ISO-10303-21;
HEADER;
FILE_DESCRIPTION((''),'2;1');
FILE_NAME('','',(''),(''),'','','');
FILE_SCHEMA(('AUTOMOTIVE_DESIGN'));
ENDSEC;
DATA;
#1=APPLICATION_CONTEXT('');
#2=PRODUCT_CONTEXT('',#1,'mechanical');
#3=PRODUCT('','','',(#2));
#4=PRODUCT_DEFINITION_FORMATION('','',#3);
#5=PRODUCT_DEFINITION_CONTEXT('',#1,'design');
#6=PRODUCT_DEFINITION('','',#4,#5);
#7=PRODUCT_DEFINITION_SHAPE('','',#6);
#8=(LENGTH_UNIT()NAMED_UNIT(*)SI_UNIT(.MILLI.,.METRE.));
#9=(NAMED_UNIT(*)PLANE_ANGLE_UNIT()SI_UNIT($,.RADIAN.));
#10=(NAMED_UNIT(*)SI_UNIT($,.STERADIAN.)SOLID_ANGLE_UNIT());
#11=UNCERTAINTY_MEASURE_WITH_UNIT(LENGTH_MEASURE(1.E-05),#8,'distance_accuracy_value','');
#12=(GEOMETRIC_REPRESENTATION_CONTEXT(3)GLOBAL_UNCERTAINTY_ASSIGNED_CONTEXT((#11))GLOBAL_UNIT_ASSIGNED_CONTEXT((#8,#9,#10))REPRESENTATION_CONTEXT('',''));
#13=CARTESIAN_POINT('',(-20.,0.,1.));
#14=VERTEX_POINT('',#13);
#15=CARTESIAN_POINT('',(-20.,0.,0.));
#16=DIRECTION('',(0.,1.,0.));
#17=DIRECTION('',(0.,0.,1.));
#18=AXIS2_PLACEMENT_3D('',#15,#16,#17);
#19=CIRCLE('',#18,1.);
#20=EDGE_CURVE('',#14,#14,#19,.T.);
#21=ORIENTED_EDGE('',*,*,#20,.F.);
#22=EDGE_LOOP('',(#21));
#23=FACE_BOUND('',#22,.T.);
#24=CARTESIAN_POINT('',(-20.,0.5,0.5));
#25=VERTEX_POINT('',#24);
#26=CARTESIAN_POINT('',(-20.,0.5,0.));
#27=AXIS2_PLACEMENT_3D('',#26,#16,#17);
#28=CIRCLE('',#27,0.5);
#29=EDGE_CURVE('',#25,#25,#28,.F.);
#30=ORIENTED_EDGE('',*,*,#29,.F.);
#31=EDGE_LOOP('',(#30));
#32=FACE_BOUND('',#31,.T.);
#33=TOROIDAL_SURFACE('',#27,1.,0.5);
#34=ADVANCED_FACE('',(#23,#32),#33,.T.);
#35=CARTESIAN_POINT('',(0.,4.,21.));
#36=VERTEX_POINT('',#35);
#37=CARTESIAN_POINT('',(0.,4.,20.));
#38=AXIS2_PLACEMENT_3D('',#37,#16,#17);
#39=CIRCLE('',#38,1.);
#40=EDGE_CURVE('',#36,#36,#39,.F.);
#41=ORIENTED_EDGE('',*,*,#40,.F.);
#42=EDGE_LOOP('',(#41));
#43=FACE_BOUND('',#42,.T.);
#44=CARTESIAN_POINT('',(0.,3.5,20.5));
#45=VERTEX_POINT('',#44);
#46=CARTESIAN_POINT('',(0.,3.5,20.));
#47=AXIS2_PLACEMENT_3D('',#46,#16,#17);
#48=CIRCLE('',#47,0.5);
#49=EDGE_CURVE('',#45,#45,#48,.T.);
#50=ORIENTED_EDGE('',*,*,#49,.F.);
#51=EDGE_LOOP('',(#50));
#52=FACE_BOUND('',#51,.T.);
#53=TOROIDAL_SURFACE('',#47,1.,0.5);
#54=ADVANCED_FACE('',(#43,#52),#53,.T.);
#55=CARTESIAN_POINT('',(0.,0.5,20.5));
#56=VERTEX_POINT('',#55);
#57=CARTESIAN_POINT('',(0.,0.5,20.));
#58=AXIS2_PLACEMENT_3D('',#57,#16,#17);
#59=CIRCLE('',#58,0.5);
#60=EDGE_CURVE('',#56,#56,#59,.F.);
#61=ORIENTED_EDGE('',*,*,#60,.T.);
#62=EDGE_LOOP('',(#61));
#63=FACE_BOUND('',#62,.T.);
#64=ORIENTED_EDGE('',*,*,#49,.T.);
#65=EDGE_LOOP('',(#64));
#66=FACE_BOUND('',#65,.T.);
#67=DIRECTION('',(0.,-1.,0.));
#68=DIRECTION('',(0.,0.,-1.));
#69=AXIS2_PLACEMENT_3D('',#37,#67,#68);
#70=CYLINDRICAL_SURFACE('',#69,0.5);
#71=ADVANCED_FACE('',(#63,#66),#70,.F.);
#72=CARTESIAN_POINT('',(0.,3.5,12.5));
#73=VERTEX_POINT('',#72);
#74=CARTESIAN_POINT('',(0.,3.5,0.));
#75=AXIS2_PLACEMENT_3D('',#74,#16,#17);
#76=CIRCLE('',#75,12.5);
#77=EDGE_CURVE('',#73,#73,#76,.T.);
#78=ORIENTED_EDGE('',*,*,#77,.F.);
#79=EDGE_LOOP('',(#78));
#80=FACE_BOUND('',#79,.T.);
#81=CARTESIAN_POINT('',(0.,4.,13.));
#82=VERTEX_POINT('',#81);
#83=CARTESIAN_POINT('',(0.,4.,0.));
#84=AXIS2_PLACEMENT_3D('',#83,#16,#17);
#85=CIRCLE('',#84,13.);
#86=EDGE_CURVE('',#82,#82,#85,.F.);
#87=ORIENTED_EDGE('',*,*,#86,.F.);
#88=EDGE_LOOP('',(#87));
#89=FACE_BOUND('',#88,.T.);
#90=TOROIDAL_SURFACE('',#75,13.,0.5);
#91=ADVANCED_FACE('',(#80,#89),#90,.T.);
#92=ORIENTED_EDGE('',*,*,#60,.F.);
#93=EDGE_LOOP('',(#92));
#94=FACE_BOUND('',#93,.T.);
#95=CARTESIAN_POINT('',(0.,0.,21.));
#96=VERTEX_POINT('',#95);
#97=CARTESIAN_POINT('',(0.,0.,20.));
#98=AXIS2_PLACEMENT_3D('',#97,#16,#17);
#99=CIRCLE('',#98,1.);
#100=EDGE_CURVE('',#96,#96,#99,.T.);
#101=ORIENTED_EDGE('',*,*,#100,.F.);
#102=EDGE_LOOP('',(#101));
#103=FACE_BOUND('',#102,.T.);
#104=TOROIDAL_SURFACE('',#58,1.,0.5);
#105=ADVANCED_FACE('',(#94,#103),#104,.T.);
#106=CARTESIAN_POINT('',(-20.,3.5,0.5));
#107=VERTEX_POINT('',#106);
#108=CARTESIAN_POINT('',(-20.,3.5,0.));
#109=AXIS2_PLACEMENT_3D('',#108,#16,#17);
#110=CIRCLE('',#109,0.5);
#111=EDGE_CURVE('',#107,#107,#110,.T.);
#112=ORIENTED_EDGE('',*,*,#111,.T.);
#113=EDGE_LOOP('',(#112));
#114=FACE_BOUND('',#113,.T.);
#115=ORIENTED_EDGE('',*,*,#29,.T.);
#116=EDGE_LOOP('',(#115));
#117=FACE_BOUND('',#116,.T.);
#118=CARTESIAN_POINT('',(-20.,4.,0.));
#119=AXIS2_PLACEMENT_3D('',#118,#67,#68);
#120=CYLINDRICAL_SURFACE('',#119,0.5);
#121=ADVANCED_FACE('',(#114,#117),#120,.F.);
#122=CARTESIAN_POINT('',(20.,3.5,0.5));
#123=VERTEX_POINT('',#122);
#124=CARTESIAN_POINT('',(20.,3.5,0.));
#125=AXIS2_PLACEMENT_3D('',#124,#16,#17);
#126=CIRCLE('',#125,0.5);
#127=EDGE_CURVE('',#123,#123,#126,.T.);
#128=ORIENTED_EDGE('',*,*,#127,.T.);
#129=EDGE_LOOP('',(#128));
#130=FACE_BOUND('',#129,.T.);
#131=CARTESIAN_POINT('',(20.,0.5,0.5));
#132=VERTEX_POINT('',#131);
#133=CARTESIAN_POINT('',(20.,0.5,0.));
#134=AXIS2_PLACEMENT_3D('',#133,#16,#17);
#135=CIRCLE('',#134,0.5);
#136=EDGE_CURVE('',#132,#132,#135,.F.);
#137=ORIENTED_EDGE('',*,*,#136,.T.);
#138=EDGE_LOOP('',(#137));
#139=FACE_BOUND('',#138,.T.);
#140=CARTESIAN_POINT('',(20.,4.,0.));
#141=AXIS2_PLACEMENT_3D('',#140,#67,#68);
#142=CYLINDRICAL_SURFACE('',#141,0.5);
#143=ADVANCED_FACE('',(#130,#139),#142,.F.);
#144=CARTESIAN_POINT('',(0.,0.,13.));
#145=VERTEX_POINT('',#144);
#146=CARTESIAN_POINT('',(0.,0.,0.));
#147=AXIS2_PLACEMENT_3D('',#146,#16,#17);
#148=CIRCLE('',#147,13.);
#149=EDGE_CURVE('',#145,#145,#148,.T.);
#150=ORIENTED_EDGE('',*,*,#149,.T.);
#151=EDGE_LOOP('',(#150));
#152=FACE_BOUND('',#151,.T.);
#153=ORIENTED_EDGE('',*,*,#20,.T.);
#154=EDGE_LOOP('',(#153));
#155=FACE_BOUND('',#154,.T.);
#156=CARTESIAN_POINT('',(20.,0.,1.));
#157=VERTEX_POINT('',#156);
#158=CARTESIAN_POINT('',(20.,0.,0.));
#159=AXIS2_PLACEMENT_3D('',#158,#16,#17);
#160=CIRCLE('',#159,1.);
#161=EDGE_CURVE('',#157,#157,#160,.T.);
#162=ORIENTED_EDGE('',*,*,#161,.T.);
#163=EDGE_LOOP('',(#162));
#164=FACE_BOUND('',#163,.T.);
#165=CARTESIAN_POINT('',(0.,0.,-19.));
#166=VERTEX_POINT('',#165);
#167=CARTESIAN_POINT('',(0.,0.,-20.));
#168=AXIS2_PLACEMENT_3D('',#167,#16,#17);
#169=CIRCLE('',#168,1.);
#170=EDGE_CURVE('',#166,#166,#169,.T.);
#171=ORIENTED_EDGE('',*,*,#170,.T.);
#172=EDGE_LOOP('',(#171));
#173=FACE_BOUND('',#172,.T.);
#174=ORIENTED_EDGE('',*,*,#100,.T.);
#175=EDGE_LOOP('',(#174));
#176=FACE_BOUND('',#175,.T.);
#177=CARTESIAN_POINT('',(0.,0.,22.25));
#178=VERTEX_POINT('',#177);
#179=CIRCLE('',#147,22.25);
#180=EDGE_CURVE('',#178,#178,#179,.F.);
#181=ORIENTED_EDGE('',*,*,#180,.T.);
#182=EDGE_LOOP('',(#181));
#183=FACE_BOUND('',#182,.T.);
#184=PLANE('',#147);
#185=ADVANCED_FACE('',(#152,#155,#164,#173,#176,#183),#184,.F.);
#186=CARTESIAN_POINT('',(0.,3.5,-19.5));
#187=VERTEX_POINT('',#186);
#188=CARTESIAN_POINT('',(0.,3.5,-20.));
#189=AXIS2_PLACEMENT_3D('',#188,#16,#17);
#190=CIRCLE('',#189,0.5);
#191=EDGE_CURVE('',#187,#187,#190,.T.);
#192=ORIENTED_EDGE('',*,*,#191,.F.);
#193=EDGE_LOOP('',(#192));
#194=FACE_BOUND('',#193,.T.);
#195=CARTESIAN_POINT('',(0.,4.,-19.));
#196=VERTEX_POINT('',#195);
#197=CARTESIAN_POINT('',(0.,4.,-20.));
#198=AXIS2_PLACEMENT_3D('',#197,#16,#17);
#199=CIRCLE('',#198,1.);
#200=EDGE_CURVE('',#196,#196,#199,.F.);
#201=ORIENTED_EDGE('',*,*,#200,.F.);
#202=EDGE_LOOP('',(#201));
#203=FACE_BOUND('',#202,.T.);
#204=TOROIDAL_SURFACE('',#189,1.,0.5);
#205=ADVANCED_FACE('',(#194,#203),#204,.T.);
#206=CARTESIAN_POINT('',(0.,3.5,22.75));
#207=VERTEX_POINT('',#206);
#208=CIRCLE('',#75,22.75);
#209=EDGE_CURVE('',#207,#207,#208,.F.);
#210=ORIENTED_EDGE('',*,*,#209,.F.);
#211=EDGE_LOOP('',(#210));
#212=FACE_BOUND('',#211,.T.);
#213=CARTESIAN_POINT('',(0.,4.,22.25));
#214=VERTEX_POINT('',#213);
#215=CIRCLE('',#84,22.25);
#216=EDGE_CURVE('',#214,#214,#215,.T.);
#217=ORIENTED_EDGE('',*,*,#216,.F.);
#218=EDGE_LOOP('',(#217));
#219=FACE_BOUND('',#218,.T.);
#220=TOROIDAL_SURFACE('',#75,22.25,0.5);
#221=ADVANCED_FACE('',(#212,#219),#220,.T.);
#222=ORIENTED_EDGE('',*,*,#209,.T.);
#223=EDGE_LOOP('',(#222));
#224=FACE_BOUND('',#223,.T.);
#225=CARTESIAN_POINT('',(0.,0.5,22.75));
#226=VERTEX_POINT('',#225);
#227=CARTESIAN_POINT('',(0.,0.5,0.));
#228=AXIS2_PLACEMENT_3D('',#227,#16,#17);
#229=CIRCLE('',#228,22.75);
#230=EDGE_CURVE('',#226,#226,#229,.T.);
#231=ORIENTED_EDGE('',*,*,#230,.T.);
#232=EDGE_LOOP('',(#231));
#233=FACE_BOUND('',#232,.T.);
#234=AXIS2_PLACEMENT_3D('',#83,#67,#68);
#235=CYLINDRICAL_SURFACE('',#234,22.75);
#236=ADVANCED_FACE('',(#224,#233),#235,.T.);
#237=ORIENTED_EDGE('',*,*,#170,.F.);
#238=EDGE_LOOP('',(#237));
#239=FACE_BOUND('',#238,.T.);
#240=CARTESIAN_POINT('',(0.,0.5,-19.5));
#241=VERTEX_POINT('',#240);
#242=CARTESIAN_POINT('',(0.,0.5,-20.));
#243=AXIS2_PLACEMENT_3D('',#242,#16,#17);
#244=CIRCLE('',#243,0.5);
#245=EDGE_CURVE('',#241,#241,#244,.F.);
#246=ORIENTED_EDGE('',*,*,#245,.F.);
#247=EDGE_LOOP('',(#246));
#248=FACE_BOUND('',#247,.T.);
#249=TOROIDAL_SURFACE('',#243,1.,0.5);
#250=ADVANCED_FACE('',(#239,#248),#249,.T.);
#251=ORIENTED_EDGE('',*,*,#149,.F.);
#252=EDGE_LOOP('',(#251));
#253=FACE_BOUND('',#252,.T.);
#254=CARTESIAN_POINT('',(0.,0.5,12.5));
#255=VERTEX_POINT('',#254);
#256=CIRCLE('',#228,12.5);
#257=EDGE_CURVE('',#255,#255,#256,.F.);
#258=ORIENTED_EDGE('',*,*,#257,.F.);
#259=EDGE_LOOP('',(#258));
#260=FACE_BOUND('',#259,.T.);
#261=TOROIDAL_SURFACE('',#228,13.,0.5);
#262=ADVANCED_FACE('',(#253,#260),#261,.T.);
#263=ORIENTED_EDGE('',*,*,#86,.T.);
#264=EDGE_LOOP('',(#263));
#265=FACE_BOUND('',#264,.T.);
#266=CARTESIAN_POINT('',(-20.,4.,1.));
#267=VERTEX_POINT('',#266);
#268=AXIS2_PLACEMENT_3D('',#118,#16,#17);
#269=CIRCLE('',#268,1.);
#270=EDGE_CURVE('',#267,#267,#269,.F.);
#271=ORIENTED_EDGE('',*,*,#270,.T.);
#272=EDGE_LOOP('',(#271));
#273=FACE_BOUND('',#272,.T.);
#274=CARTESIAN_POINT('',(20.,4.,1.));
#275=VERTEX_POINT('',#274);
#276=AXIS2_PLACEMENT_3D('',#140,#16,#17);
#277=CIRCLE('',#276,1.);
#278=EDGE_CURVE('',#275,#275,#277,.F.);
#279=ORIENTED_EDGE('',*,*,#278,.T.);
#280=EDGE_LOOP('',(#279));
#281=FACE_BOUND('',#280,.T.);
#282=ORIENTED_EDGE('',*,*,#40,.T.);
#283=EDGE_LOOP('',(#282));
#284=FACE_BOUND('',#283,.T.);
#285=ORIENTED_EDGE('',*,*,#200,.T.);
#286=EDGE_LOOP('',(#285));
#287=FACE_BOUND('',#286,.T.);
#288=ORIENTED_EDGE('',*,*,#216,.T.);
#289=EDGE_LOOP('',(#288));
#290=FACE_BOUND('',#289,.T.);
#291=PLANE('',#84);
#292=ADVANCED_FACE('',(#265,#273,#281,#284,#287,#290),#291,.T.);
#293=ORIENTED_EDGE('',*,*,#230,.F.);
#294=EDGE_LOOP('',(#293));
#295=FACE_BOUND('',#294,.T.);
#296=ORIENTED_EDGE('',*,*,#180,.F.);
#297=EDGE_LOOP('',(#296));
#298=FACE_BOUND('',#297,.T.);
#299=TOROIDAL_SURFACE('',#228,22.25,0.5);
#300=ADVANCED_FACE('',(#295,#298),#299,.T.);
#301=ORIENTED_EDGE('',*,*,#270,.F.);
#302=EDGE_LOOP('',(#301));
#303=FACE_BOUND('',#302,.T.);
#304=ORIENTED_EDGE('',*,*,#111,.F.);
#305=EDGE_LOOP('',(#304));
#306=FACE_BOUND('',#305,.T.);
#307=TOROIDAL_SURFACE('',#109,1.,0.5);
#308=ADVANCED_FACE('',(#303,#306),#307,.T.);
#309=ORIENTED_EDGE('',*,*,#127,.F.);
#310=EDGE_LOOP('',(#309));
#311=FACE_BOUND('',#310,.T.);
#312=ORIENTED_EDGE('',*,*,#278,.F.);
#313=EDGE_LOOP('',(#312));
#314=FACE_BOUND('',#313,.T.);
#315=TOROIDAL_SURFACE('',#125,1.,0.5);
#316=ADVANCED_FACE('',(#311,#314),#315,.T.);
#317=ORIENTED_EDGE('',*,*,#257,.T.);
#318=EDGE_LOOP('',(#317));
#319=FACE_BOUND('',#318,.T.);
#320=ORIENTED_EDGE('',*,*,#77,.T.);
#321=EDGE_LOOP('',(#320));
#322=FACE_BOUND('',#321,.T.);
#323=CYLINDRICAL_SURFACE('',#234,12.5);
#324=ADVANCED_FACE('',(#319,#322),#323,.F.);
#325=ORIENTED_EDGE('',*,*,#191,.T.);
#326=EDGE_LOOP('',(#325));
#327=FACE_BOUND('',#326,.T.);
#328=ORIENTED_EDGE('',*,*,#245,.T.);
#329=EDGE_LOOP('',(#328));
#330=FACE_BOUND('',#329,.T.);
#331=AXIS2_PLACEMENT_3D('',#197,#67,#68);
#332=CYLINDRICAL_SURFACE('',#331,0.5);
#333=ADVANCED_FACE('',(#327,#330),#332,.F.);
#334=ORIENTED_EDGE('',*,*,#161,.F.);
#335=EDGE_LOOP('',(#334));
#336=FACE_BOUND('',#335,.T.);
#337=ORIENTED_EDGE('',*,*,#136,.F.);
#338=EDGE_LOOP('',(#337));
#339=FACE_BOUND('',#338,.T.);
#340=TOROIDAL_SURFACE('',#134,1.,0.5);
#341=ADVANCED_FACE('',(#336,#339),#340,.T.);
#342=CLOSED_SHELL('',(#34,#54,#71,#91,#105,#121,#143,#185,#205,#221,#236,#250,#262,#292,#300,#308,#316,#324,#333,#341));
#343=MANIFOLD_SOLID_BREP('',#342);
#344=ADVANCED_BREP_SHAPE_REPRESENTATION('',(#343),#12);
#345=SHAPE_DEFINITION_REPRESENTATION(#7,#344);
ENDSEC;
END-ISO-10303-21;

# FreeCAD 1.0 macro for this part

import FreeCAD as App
import Part
import Sketcher
from FreeCAD import Vector


def edges_at(feature, points):
    """Names of the edges that pass closest to the given points."""
    edges = feature.Shape.Edges
    near = lambda p: min(range(len(edges)), key=lambda i: edges[i].distToShape(Part.Vertex(*p))[0])
    return sorted({f"Edge{near(p) + 1}" for p in points})

doc = App.newDocument("Part")
body = doc.addObject("PartDesign::Body", "Body")

# Sketch on XZ plane
sketch1 = body.newObject("Sketcher::SketchObject", "Sketch")
sketch1.AttachmentSupport = (doc.getObject("XZ_Plane"), [""])
sketch1.MapMode = "FlatFace"
sketch1.addGeometry([
    Part.Circle(Vector(0, 0, 0), Vector(0, 0, 1), 22.8),  # 0
    Part.Circle(Vector(0, 20, 0), Vector(0, 0, 1), 0.5),  # 1
    Part.Circle(Vector(-20, 0, 0), Vector(0, 0, 1), 0.5),  # 2
    Part.Circle(Vector(0, 0, 0), Vector(0, 0, 1), 12.5),  # 3
    Part.Circle(Vector(20, 0, 0), Vector(0, 0, 1), 0.5),  # 4
    Part.Circle(Vector(0, -20, 0), Vector(0, 0, 1), 0.5),  # 5
], False)
sketch1.addConstraint([
    Sketcher.Constraint("Coincident", 0, 3, -1, 1),
    Sketcher.Constraint("Coincident", 3, 3, -1, 1),
    Sketcher.Constraint("Equal", 1, 2),
    Sketcher.Constraint("Equal", 2, 4),
    Sketcher.Constraint("Equal", 4, 5),
    Sketcher.Constraint("Symmetric", 2, 3, 4, 3, -1, 1),
    Sketcher.Constraint("Symmetric", 1, 3, 5, 3, -1, 1),
    Sketcher.Constraint("PointOnObject", 1, 3, -2),
    Sketcher.Constraint("PointOnObject", 2, 3, -1),
    Sketcher.Constraint("Diameter", 1, 1.0),
    Sketcher.Constraint("Diameter", 3, 25.0),
    Sketcher.Constraint("Diameter", 0, 45.5),
    Sketcher.Constraint("DistanceY", -1, 1, 1, 3, 20.0),
    Sketcher.Constraint("DistanceX", 2, 3, -1, 1, 20.0),
])
pad1 = body.newObject("PartDesign::Pad", "Pad")
pad1.Profile = sketch1
pad1.Length = 4
pad1.Reversed = True
doc.recompute()

fillet = body.newObject("PartDesign::Fillet", "Fillet")
fillet.Base = (pad1, edges_at(pad1, [
    (-22.75, 0, 0),
    (-22.75, 4, 0),
    (-12.5, 0, 0),
    (-12.5, 4, 0),
]))
fillet.Radius = 0.5
doc.recompute()

fillet2 = body.newObject("PartDesign::Fillet", "Fillet001")
fillet2.Base = (fillet, edges_at(fillet, [
    (-0.5, 0, 20),
    (-0.5, 4, 20),
    (-20.5, 0, 0),
    (-20.5, 4, 0),
    (-0.5, 0, -20),
    (-0.5, 4, -20),
    (19.5, 0, 0),
    (19.5, 4, 0),
]))
fillet2.Radius = 0.5

doc.recompute()
